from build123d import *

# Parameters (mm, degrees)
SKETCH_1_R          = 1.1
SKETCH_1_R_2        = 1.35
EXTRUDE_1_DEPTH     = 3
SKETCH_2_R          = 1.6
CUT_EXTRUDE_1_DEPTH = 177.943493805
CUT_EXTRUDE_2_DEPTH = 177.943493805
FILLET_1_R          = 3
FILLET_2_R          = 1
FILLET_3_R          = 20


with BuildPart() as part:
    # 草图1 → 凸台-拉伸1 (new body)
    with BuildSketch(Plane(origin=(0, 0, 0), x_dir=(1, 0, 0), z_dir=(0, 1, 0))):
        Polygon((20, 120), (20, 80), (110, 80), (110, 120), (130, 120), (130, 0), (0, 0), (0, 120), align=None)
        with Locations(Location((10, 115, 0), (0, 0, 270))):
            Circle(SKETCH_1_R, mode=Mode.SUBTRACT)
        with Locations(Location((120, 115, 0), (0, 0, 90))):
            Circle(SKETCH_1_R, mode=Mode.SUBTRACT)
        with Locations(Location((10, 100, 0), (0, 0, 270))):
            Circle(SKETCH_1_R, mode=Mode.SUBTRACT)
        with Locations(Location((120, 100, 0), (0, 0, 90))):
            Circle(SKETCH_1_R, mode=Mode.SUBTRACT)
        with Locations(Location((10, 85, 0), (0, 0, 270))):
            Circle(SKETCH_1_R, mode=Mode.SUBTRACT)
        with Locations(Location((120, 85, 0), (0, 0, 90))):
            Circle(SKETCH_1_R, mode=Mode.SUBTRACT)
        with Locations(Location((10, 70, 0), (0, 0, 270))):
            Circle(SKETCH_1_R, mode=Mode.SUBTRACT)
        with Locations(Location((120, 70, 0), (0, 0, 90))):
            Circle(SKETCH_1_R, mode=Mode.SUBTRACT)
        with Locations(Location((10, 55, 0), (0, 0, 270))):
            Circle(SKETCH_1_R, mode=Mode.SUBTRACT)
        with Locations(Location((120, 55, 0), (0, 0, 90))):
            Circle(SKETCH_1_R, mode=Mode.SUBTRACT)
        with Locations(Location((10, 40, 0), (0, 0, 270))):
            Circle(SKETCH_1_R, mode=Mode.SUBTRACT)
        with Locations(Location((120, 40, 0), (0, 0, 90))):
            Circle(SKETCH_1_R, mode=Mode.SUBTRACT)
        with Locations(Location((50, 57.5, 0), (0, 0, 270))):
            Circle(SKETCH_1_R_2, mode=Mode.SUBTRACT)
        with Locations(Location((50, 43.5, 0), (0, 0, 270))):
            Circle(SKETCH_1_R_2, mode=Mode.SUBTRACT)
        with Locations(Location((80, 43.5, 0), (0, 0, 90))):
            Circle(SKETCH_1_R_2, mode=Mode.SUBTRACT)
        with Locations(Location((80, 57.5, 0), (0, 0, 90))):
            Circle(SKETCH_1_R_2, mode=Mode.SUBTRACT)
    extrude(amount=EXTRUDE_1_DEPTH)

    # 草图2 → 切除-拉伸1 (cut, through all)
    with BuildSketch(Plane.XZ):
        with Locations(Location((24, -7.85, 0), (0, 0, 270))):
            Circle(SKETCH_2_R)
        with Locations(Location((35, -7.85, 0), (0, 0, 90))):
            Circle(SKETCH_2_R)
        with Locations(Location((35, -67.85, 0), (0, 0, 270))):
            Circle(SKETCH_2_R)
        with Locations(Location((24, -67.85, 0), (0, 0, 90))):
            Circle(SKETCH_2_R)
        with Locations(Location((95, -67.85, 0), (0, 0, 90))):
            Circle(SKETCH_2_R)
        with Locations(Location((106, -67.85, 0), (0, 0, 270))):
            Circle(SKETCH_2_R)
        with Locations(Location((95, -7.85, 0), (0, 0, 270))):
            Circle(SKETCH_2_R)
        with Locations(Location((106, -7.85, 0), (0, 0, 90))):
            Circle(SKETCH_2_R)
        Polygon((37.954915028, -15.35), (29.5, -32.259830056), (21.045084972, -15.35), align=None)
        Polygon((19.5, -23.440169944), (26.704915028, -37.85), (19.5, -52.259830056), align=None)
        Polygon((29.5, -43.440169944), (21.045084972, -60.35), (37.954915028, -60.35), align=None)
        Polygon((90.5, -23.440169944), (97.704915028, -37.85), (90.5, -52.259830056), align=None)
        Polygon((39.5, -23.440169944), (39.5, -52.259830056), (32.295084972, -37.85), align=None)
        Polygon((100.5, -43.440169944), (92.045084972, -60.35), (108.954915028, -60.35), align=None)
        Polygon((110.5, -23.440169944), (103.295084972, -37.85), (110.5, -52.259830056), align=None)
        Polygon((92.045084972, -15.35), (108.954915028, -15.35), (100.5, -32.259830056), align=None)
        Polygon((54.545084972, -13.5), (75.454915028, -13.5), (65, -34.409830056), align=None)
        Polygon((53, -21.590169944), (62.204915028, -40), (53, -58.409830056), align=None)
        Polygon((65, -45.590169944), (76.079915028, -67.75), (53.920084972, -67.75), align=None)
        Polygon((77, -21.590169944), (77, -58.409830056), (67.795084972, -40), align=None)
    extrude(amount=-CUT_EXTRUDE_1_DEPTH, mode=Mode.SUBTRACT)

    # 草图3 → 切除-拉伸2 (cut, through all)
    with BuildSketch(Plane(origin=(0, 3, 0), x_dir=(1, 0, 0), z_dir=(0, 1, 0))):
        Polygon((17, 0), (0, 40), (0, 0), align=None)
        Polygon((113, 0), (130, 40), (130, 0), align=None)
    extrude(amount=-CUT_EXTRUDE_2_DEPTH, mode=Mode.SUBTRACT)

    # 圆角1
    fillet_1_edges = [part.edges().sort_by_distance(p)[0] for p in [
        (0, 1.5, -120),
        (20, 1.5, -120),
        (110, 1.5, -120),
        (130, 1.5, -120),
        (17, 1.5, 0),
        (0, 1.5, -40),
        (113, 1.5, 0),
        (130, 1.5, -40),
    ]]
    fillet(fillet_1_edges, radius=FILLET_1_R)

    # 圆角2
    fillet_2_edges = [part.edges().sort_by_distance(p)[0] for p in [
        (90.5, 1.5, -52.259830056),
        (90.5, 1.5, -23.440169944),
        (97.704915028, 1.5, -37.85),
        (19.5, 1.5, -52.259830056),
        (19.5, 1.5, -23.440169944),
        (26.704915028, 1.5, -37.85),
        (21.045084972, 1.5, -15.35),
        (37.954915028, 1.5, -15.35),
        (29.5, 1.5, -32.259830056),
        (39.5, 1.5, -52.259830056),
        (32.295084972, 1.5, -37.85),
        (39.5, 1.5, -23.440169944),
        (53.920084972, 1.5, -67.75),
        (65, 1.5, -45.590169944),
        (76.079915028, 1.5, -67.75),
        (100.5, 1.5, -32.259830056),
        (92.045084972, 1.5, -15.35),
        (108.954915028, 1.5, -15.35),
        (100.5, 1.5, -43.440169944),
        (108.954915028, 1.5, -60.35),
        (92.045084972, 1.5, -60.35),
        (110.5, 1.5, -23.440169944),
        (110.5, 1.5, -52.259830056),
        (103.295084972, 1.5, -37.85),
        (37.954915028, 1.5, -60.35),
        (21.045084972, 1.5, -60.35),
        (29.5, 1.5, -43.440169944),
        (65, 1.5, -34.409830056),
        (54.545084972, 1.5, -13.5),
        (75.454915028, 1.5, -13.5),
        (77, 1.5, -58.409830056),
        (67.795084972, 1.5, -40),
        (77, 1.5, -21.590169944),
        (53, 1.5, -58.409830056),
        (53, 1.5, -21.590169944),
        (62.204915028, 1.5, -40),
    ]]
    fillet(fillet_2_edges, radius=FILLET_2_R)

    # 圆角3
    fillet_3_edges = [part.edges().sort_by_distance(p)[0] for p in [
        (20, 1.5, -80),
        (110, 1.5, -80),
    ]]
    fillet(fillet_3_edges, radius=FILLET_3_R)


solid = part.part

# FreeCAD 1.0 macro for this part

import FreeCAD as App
import Part
import Sketcher


def edges_at(feature, points):
    """Names of the edges that pass closest to the given points."""
    edges = feature.Shape.Edges
    near = lambda p: min(range(len(edges)), key=lambda i: edges[i].distToShape(Part.Vertex(*p))[0])
    return sorted({f"Edge{near(p) + 1}" for p in points})


def add_polygon(sketch, points):
    """Adds a closed chain of lines whose ends are joined by coincident constraints."""
    first, n = sketch.GeometryCount, len(points)
    for a, b in zip(points, points[1:] + points[:1]):
        sketch.addGeometry(Part.LineSegment(App.Vector(*a, 0), App.Vector(*b, 0)), False)
    for i in range(n):
        sketch.addConstraint(Sketcher.Constraint("Coincident", first + i, 2, first + (i + 1) % n, 1))

doc = App.newDocument("Part")
body = doc.addObject("PartDesign::Body", "Body")

sketch1 = body.newObject("Sketcher::SketchObject", "Sketch")
sketch1.AttachmentSupport = (doc.getObject("XZ_Plane"), [""])
sketch1.MapMode = "FlatFace"
add_polygon(sketch1, [(20, -80), (20, -120), (0, -120), (0, 0), (130, 0), (130, -120), (110, -120), (110, -80)])
sketch1.addGeometry(Part.Circle(App.Vector(120, -40, 0), App.Vector(0, 0, 1), 1.1), False)
sketch1.addGeometry(Part.Circle(App.Vector(120, -55, 0), App.Vector(0, 0, 1), 1.1), False)
sketch1.addGeometry(Part.Circle(App.Vector(80, -43.5, 0), App.Vector(0, 0, 1), 1.4), False)
sketch1.addGeometry(Part.Circle(App.Vector(80, -57.5, 0), App.Vector(0, 0, 1), 1.4), False)
sketch1.addGeometry(Part.Circle(App.Vector(120, -70, 0), App.Vector(0, 0, 1), 1.1), False)
sketch1.addGeometry(Part.Circle(App.Vector(50, -43.5, 0), App.Vector(0, 0, 1), 1.4), False)
sketch1.addGeometry(Part.Circle(App.Vector(50, -57.5, 0), App.Vector(0, 0, 1), 1.4), False)
sketch1.addGeometry(Part.Circle(App.Vector(10, -40, 0), App.Vector(0, 0, 1), 1.1), False)
sketch1.addGeometry(Part.Circle(App.Vector(10, -55, 0), App.Vector(0, 0, 1), 1.1), False)
sketch1.addGeometry(Part.Circle(App.Vector(10, -70, 0), App.Vector(0, 0, 1), 1.1), False)
sketch1.addGeometry(Part.Circle(App.Vector(120, -85, 0), App.Vector(0, 0, 1), 1.1), False)
sketch1.addGeometry(Part.Circle(App.Vector(120, -100, 0), App.Vector(0, 0, 1), 1.1), False)
sketch1.addGeometry(Part.Circle(App.Vector(120, -115, 0), App.Vector(0, 0, 1), 1.1), False)
sketch1.addGeometry(Part.Circle(App.Vector(10, -85, 0), App.Vector(0, 0, 1), 1.1), False)
sketch1.addGeometry(Part.Circle(App.Vector(10, -100, 0), App.Vector(0, 0, 1), 1.1), False)
sketch1.addGeometry(Part.Circle(App.Vector(10, -115, 0), App.Vector(0, 0, 1), 1.1), False)
sketch1.addConstraint([
    Sketcher.Constraint("Vertical", 0),
    Sketcher.Constraint("Horizontal", 1),
    Sketcher.Constraint("Vertical", 2),
    Sketcher.Constraint("Horizontal", 3),
    Sketcher.Constraint("Vertical", 4),
    Sketcher.Constraint("Horizontal", 5),
    Sketcher.Constraint("Vertical", 6),
    Sketcher.Constraint("Horizontal", 7),
    Sketcher.Constraint("Coincident", 2, 2, -1, 1),
    Sketcher.Constraint("Equal", 8, 9),
    Sketcher.Constraint("Equal", 10, 11),
    Sketcher.Constraint("Equal", 9, 12),
    Sketcher.Constraint("Equal", 11, 13),
    Sketcher.Constraint("Equal", 13, 14),
    Sketcher.Constraint("Equal", 12, 15),
    Sketcher.Constraint("Equal", 15, 16),
    Sketcher.Constraint("Equal", 16, 17),
    Sketcher.Constraint("Equal", 17, 18),
    Sketcher.Constraint("Equal", 18, 19),
    Sketcher.Constraint("Equal", 19, 20),
    Sketcher.Constraint("Equal", 20, 21),
    Sketcher.Constraint("Equal", 21, 22),
    Sketcher.Constraint("Equal", 22, 23),
    Sketcher.Constraint("Horizontal", 10, 3, 13, 3),
    Sketcher.Constraint("Horizontal", 11, 3, 14, 3),
    Sketcher.Constraint("Horizontal", 8, 3, 15, 3),
    Sketcher.Constraint("Horizontal", 9, 3, 16, 3),
    Sketcher.Constraint("Horizontal", 12, 3, 17, 3),
    Sketcher.Constraint("Horizontal", 18, 3, 21, 3),
    Sketcher.Constraint("Horizontal", 19, 3, 22, 3),
    Sketcher.Constraint("Horizontal", 20, 3, 23, 3),
    Sketcher.Constraint("Horizontal", 1, 2, 4, 2),
    Sketcher.Constraint("Vertical", 8, 3, 9, 3),
    Sketcher.Constraint("Vertical", 10, 3, 11, 3),
    Sketcher.Constraint("Vertical", 9, 3, 12, 3),
    Sketcher.Constraint("Vertical", 13, 3, 14, 3),
    Sketcher.Constraint("Vertical", 15, 3, 16, 3),
    Sketcher.Constraint("Vertical", 16, 3, 17, 3),
    Sketcher.Constraint("Vertical", 12, 3, 18, 3),
    Sketcher.Constraint("Vertical", 18, 3, 19, 3),
    Sketcher.Constraint("Vertical", 19, 3, 20, 3),
    Sketcher.Constraint("Vertical", 17, 3, 21, 3),
    Sketcher.Constraint("Vertical", 21, 3, 22, 3),
    Sketcher.Constraint("Vertical", 22, 3, 23, 3),
    Sketcher.Constraint("Equal", 1, 5),
    Sketcher.Constraint("Diameter", 8, 2.2),
    Sketcher.Constraint("Diameter", 10, 2.7),
    Sketcher.Constraint("DistanceX", 1, 2, 1, 1, 20.0),
    Sketcher.Constraint("DistanceX", 3, 1, 3, 2, 130.0),
    Sketcher.Constraint("DistanceY", 0, 2, 0, 1, 40.0),
    Sketcher.Constraint("DistanceY", 2, 1, 2, 2, 120.0),
    Sketcher.Constraint("DistanceX", -1, 1, 8, 3, 120.0),
    Sketcher.Constraint("DistanceY", 8, 3, -1, 1, 40.0),
    Sketcher.Constraint("DistanceY", 9, 3, -1, 1, 55.0),
    Sketcher.Constraint("DistanceX", -1, 1, 10, 3, 80.0),
    Sketcher.Constraint("DistanceY", 12, 3, -1, 1, 70.0),
    Sketcher.Constraint("DistanceX", -1, 1, 13, 3, 50.0),
    Sketcher.Constraint("DistanceX", -1, 1, 15, 3, 10.0),
    Sketcher.Constraint("DistanceY", 18, 3, -1, 1, 85.0),
    Sketcher.Constraint("DistanceY", 19, 3, -1, 1, 100.0),
    Sketcher.Constraint("DistanceY", 20, 3, -1, 1, 115.0),
    Sketcher.Constraint("DistanceY", 11, 3, 10, 3, 14.0),
    Sketcher.Constraint("DistanceY", 10, 3, -1, 1, 43.5),
])
pad1 = body.newObject("PartDesign::Pad", "Pad")
pad1.Profile = sketch1
pad1.Length = 3
pad1.Reversed = True

sketch2 = body.newObject("Sketcher::SketchObject", "Sketch001")
sketch2.AttachmentSupport = (doc.getObject("XZ_Plane"), [""])
sketch2.MapMode = "FlatFace"
sketch2.addGeometry(Part.Circle(App.Vector(24, -7.8, 0), App.Vector(0, 0, 1), 1.6), False)
sketch2.addGeometry(Part.Circle(App.Vector(35, -7.8, 0), App.Vector(0, 0, 1), 1.6), False)
sketch2.addGeometry(Part.Circle(App.Vector(35, -67.8, 0), App.Vector(0, 0, 1), 1.6), False)
sketch2.addGeometry(Part.Circle(App.Vector(24, -67.8, 0), App.Vector(0, 0, 1), 1.6), False)
sketch2.addGeometry(Part.Circle(App.Vector(95, -67.8, 0), App.Vector(0, 0, 1), 1.6), False)
sketch2.addGeometry(Part.Circle(App.Vector(106, -67.8, 0), App.Vector(0, 0, 1), 1.6), False)
sketch2.addGeometry(Part.Circle(App.Vector(95, -7.8, 0), App.Vector(0, 0, 1), 1.6), False)
sketch2.addGeometry(Part.Circle(App.Vector(106, -7.8, 0), App.Vector(0, 0, 1), 1.6), False)
add_polygon(sketch2, [(29.5, -32.3), (38, -15.3), (21, -15.3)])
add_polygon(sketch2, [(26.7, -37.9), (19.5, -23.4), (19.5, -52.3)])
add_polygon(sketch2, [(29.5, -43.4), (21, -60.4), (38, -60.4)])
add_polygon(sketch2, [(97.7, -37.9), (90.5, -23.4), (90.5, -52.3)])
add_polygon(sketch2, [(39.5, -52.3), (39.5, -23.4), (32.3, -37.9)])
add_polygon(sketch2, [(100.5, -43.4), (92, -60.4), (109, -60.4)])
add_polygon(sketch2, [(110.5, -23.4), (103.3, -37.9), (110.5, -52.3)])
add_polygon(sketch2, [(109, -15.3), (92, -15.3), (100.5, -32.3)])
add_polygon(sketch2, [(75.5, -13.5), (54.5, -13.5), (65, -34.4)])
add_polygon(sketch2, [(62.2, -40), (53, -21.6), (53, -58.4)])
add_polygon(sketch2, [(76.1, -67.8), (65, -45.6), (53.9, -67.8)])
add_polygon(sketch2, [(77, -58.4), (77, -21.6), (67.8, -40)])
sketch2.addConstraint([
    Sketcher.Constraint("Horizontal", 9),
    Sketcher.Constraint("Vertical", 12),
    Sketcher.Constraint("Horizontal", 15),
    Sketcher.Constraint("Vertical", 18),
    Sketcher.Constraint("Vertical", 20),
    Sketcher.Constraint("Horizontal", 24),
    Sketcher.Constraint("Vertical", 28),
    Sketcher.Constraint("Horizontal", 29),
    Sketcher.Constraint("Horizontal", 32),
    Sketcher.Constraint("Vertical", 36),
    Sketcher.Constraint("Horizontal", 40),
    Sketcher.Constraint("Vertical", 41),
    Sketcher.Constraint("Equal", 0, 1),
    Sketcher.Constraint("Equal", 1, 2),
    Sketcher.Constraint("Equal", 2, 3),
    Sketcher.Constraint("Equal", 3, 4),
    Sketcher.Constraint("Equal", 4, 5),
    Sketcher.Constraint("Equal", 5, 6),
    Sketcher.Constraint("Equal", 6, 7),
    Sketcher.Constraint("Parallel", 10, 11),
    Sketcher.Constraint("Parallel", 8, 13),
    Sketcher.Constraint("Parallel", 13, 14),
    Sketcher.Constraint("Parallel", 11, 16),
    Sketcher.Constraint("Parallel", 16, 17),
    Sketcher.Constraint("Parallel", 14, 19),
    Sketcher.Constraint("Parallel", 19, 21),
    Sketcher.Constraint("Parallel", 17, 22),
    Sketcher.Constraint("Parallel", 21, 23),
    Sketcher.Constraint("Parallel", 22, 25),
    Sketcher.Constraint("Parallel", 23, 26),
    Sketcher.Constraint("Parallel", 25, 27),
    Sketcher.Constraint("Parallel", 27, 30),
    Sketcher.Constraint("Parallel", 26, 31),
    Sketcher.Constraint("Parallel", 30, 33),
    Sketcher.Constraint("Parallel", 31, 34),
    Sketcher.Constraint("Parallel", 33, 35),
    Sketcher.Constraint("Parallel", 34, 37),
    Sketcher.Constraint("Parallel", 35, 38),
    Sketcher.Constraint("Parallel", 37, 39),
    Sketcher.Constraint("Parallel", 39, 42),
    Sketcher.Constraint("Parallel", 38, 43),
    Sketcher.Constraint("Horizontal", 0, 3, 1, 3),
    Sketcher.Constraint("Horizontal", 2, 3, 3, 3),
    Sketcher.Constraint("Horizontal", 3, 3, 4, 3),
    Sketcher.Constraint("Horizontal", 4, 3, 5, 3),
    Sketcher.Constraint("Horizontal", 1, 3, 6, 3),
    Sketcher.Constraint("Horizontal", 6, 3, 7, 3),
    Sketcher.Constraint("Horizontal", 11, 2, 17, 2),
    Sketcher.Constraint("Horizontal", 12, 2, 18, 2),
    Sketcher.Constraint("Horizontal", 17, 2, 20, 2),
    Sketcher.Constraint("Horizontal", 19, 2, 21, 2),
    Sketcher.Constraint("Horizontal", 18, 2, 22, 2),
    Sketcher.Constraint("Horizontal", 15, 2, 23, 2),
    Sketcher.Constraint("Horizontal", 16, 2, 25, 2),
    Sketcher.Constraint("Horizontal", 21, 2, 26, 2),
    Sketcher.Constraint("Horizontal", 22, 2, 27, 2),
    Sketcher.Constraint("Horizontal", 9, 2, 29, 2),
    Sketcher.Constraint("Horizontal", 10, 2, 30, 2),
    Sketcher.Constraint("Horizontal", 35, 2, 41, 2),
    Sketcher.Constraint("Horizontal", 37, 2, 42, 2),
    Sketcher.Constraint("Vertical", 1, 3, 2, 3),
    Sketcher.Constraint("Vertical", 0, 3, 3, 3),
    Sketcher.Constraint("Vertical", 4, 3, 6, 3),
    Sketcher.Constraint("Vertical", 5, 3, 7, 3),
    Sketcher.Constraint("Vertical", 9, 2, 14, 2),
    Sketcher.Constraint("Vertical", 8, 2, 15, 2),
    Sketcher.Constraint("Vertical", 23, 2, 29, 2),
    Sketcher.Constraint("Vertical", 33, 2, 38, 2),
    Sketcher.Constraint("Diameter", 0, 3.2),
    Sketcher.Constraint("DistanceX", -1, 1, 0, 3, 24.0),
    Sketcher.Constraint("DistanceX", -1, 1, 1, 3, 35.0),
    Sketcher.Constraint("DistanceX", -1, 1, 4, 3, 95.0),
    Sketcher.Constraint("DistanceX", -1, 1, 5, 3, 106.0),
    Sketcher.Constraint("DistanceX", -1, 1, 33, 2, 65.0),
    Sketcher.Constraint("DistanceX", -1, 1, 35, 2, 53.0),
    Sketcher.Constraint("DistanceY", 37, 2, -1, 1, 40.0),
    Sketcher.Constraint("DistanceX", -1, 1, 41, 2, 77.0),
    Sketcher.Constraint("DistanceY", 2, 3, 1, 3, 60.0),
    Sketcher.Constraint("DistanceX", 11, 2, 10, 2, 10.0),
    Sketcher.Constraint("DistanceY", 12, 2, 10, 2, 20.0),
    Sketcher.Constraint("DistanceY", 4, 3, 19, 2, 30.0),
    Sketcher.Constraint("DistanceX", 10, 2, 20, 2, 10.0),
    Sketcher.Constraint("DistanceX", 18, 2, 25, 2, 10.0),
    Sketcher.Constraint("DistanceY", 25, 2, 17, 2, 20.0),
    Sketcher.Constraint("DistanceX", 25, 2, 27, 2, 10.0),
    Sketcher.Constraint("DistanceY", 36, 2, 33, 2, 24.0),
    Sketcher.Constraint("DistanceX", -1, 1, 10, 2, 29.5),
    Sketcher.Constraint("DistanceX", -1, 1, 17, 2, 90.5),
    Sketcher.Constraint("DistanceY", 32, 2, -1, 1, 13.5),
    Sketcher.Constraint("DistanceY", 8, 2, 1, 3, 7.5),
    Sketcher.Constraint("DistanceY", 39, 2, 15, 2, 7.4),
    Sketcher.Constraint("DistanceY", 0, 3, -1, 1, 7.85),
    Sketcher.Constraint("DistanceX", 13, 2, 8, 2, 11.25),
    Sketcher.Constraint("DistanceY", 18, 2, 33, 2, 17.85),
    Sketcher.Constraint("Distance", 33, 23.377901),
    Sketcher.Constraint("DistanceX", 40, 1, 40, 2, 22.15983),
])
pocket1 = body.newObject("PartDesign::Pocket", "Pocket")
pocket1.Profile = sketch2
pocket1.Type = "ThroughAll"

sketch3 = body.newObject("Sketcher::SketchObject", "Sketch002")
sketch3.AttachmentSupport = (doc.getObject("XZ_Plane"), [""])
sketch3.MapMode = "FlatFace"
sketch3.AttachmentOffset = App.Placement(App.Vector(0, 0, -3), App.Rotation())
add_polygon(sketch3, [(17, 0), (0, -40), (0, 0)])
add_polygon(sketch3, [(130, -40), (113, 0), (130, 0)])
sketch3.addConstraint([
    Sketcher.Constraint("Vertical", 1),
    Sketcher.Constraint("Horizontal", 2),
    Sketcher.Constraint("Horizontal", 4),
    Sketcher.Constraint("Vertical", 5),
    Sketcher.Constraint("Coincident", 1, 2, -1, 1),
    Sketcher.Constraint("PointOnObject", 3, 2, -1),
    Sketcher.Constraint("Horizontal", 0, 2, 5, 2),
    Sketcher.Constraint("Equal", 2, 4),
    Sketcher.Constraint("DistanceX", 2, 1, 2, 2, 17.0),
    Sketcher.Constraint("DistanceY", 1, 1, 1, 2, 40.0),
    Sketcher.Constraint("DistanceX", -1, 1, 3, 2, 113.0),
])
pocket2 = body.newObject("PartDesign::Pocket", "Pocket001")
pocket2.Profile = sketch3
pocket2.Type = "ThroughAll"
pocket2.Reversed = True
doc.recompute()

fillet = body.newObject("PartDesign::Fillet", "Fillet")
fillet.Base = (pocket2, edges_at(pocket2, [
    (0, 1.5, -120),
    (20, 1.5, -120),
    (110, 1.5, -120),
    (130, 1.5, -120),
    (17, 1.5, 0),
    (0, 1.5, -40),
    (113, 1.5, 0),
    (130, 1.5, -40),
]))
fillet.Radius = 3
doc.recompute()

fillet2 = body.newObject("PartDesign::Fillet", "Fillet001")
fillet2.Base = (fillet, edges_at(fillet, [
    (90.5, 1.5, -52.26),
    (90.5, 1.5, -23.44),
    (97.705, 1.5, -37.85),
    (19.5, 1.5, -52.26),
    (19.5, 1.5, -23.44),
    (26.705, 1.5, -37.85),
    (21.045, 1.5, -15.35),
    (37.955, 1.5, -15.35),
    (29.5, 1.5, -32.26),
    (39.5, 1.5, -52.26),
    (32.295, 1.5, -37.85),
    (39.5, 1.5, -23.44),
    (53.92, 1.5, -67.75),
    (65, 1.5, -45.59),
    (76.08, 1.5, -67.75),
    (100.5, 1.5, -32.26),
    (92.045, 1.5, -15.35),
    (108.955, 1.5, -15.35),
    (100.5, 1.5, -43.44),
    (108.955, 1.5, -60.35),
    (92.045, 1.5, -60.35),
    (110.5, 1.5, -23.44),
    (110.5, 1.5, -52.26),
    (103.295, 1.5, -37.85),
    (37.955, 1.5, -60.35),
    (21.045, 1.5, -60.35),
    (29.5, 1.5, -43.44),
    (65, 1.5, -34.41),
    (54.545, 1.5, -13.5),
    (75.455, 1.5, -13.5),
    (77, 1.5, -58.41),
    (67.795, 1.5, -40),
    (77, 1.5, -21.59),
    (53, 1.5, -58.41),
    (53, 1.5, -21.59),
    (62.205, 1.5, -40),
]))
fillet2.Radius = 1
doc.recompute()

fillet3 = body.newObject("PartDesign::Fillet", "Fillet002")
fillet3.Base = (fillet2, edges_at(fillet2, [(20, 1.5, -80), (110, 1.5, -80)]))
fillet3.Radius = 20

doc.recompute()
